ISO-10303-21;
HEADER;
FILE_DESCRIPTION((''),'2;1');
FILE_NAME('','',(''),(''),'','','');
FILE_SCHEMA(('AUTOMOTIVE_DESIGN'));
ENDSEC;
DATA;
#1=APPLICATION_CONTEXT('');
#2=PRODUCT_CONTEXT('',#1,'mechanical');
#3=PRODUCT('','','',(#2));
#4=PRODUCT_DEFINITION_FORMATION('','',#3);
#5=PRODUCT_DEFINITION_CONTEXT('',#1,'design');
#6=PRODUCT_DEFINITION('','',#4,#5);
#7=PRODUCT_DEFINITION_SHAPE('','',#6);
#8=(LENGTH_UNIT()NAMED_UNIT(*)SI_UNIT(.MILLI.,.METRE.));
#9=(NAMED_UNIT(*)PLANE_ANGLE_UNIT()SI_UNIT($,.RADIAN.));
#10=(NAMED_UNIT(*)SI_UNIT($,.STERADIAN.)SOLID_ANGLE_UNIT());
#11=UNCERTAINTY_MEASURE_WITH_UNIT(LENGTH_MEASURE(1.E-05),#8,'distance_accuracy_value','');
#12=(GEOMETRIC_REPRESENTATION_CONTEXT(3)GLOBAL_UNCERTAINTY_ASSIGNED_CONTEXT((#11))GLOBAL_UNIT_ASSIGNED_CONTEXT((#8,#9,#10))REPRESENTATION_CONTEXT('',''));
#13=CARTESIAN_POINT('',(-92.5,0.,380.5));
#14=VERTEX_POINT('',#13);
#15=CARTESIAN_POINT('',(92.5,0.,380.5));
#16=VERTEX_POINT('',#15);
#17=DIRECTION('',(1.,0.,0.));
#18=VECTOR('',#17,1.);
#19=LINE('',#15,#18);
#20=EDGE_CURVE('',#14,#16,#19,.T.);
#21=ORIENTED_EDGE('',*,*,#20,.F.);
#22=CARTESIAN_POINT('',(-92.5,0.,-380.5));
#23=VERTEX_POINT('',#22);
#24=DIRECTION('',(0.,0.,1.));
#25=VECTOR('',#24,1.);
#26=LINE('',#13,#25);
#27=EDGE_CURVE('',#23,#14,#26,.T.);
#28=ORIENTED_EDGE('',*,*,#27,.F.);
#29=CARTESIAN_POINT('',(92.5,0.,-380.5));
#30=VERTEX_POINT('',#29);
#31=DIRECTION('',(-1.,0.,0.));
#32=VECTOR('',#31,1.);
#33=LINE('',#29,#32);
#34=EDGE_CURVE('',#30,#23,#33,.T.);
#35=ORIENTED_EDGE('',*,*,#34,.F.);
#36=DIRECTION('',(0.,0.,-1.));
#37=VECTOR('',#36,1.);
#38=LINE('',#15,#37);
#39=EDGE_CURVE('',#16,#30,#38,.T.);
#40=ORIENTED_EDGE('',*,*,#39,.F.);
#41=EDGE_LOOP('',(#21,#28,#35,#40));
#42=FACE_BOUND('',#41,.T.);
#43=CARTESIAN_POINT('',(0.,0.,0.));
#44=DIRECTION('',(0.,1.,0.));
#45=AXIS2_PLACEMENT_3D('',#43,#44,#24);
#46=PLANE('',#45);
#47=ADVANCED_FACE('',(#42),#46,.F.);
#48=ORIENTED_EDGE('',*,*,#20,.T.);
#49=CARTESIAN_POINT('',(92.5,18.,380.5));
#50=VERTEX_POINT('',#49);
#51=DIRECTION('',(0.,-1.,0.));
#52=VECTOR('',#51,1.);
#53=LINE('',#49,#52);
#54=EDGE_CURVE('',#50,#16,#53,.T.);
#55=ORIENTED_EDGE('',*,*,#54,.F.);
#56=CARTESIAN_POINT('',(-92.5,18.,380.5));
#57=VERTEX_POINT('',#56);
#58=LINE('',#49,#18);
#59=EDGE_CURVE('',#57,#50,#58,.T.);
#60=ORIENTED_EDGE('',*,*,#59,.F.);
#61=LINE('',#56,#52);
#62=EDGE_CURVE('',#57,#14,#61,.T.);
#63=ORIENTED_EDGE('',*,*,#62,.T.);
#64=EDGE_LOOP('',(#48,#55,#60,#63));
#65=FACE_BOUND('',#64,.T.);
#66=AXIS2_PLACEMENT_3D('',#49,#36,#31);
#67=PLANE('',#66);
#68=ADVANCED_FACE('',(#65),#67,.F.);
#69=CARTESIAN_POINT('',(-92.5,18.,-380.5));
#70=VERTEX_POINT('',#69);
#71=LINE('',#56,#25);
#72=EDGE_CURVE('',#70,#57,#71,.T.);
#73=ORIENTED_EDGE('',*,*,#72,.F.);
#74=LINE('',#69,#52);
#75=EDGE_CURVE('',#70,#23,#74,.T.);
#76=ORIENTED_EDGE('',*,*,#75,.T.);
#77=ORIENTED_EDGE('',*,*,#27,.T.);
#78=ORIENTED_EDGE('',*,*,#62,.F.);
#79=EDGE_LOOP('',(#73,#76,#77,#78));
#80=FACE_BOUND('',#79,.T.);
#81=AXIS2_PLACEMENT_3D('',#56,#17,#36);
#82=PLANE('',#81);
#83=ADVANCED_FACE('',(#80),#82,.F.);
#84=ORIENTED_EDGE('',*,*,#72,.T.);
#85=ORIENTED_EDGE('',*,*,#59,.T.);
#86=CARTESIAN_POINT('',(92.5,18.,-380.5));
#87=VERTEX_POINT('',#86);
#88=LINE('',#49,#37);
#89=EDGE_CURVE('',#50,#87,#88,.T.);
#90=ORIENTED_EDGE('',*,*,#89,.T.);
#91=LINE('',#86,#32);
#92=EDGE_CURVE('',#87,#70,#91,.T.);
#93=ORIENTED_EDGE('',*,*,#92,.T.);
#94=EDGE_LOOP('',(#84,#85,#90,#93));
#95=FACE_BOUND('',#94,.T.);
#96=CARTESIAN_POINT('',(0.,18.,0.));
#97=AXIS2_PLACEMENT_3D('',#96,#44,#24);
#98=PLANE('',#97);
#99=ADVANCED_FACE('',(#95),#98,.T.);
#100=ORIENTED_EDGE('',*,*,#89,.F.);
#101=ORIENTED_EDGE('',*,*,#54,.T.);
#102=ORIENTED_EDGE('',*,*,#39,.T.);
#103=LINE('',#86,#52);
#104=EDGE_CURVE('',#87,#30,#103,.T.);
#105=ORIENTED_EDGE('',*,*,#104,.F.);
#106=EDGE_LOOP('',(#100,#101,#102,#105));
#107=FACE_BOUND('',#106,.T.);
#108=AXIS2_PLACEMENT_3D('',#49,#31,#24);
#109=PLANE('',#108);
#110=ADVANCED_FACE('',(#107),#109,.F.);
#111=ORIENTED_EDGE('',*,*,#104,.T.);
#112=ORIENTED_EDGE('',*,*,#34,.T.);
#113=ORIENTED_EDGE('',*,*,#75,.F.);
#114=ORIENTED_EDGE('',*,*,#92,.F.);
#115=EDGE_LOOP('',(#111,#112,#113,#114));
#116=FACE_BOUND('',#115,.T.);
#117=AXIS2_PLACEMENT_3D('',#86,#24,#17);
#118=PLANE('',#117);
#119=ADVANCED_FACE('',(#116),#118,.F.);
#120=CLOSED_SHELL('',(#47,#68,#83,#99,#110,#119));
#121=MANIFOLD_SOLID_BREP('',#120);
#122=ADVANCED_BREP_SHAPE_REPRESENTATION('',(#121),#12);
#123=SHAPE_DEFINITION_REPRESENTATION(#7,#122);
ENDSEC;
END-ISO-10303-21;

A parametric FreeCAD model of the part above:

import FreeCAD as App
import Part
import Sketcher

V = App.Vector
Q = App.Units.Quantity


def add_polygon(sketch, points):
    """Adds a closed chain of lines whose ends are joined by coincident constraints."""
    first, n = sketch.GeometryCount, len(points)
    for a, b in zip(points, points[1:] + points[:1]):
        sketch.addGeometry(Part.LineSegment(App.Vector(*a, 0), App.Vector(*b, 0)), False)
    for i in range(n):
        sketch.addConstraint(Sketcher.Constraint("Coincident", first + i, 2, first + (i + 1) % n, 1))

doc = App.newDocument("Part")
body = doc.addObject("PartDesign::Body", "Body")

sketch1 = body.newObject("Sketcher::SketchObject", "Sketch")
sketch1.AttachmentSupport = (doc.getObject("XZ_Plane"), [""])
sketch1.MapMode = "FlatFace"
add_polygon(sketch1, [(-92.5, -380.5), (-92.5, 380.5), (92.5, 380.5), (92.5, -380.5)])
sketch1.addConstraint([
    Sketcher.Constraint("Vertical", 0),
    Sketcher.Constraint("Horizontal", 1),
    Sketcher.Constraint("Vertical", 2),
    Sketcher.Constraint("Horizontal", 3),
    Sketcher.Constraint("Symmetric", 0, 2, 2, 2, -1, 1),
    Sketcher.Constraint("DistanceX", 1, 1, 1, 2, Q("185 mm")),
    Sketcher.Constraint("DistanceY", 0, 1, 0, 2, Q("761 mm")),
])
pad1 = body.newObject("PartDesign::Pad", "Pad")
pad1.Profile = sketch1
pad1.Length = 18
pad1.Reversed = True

doc.recompute()
